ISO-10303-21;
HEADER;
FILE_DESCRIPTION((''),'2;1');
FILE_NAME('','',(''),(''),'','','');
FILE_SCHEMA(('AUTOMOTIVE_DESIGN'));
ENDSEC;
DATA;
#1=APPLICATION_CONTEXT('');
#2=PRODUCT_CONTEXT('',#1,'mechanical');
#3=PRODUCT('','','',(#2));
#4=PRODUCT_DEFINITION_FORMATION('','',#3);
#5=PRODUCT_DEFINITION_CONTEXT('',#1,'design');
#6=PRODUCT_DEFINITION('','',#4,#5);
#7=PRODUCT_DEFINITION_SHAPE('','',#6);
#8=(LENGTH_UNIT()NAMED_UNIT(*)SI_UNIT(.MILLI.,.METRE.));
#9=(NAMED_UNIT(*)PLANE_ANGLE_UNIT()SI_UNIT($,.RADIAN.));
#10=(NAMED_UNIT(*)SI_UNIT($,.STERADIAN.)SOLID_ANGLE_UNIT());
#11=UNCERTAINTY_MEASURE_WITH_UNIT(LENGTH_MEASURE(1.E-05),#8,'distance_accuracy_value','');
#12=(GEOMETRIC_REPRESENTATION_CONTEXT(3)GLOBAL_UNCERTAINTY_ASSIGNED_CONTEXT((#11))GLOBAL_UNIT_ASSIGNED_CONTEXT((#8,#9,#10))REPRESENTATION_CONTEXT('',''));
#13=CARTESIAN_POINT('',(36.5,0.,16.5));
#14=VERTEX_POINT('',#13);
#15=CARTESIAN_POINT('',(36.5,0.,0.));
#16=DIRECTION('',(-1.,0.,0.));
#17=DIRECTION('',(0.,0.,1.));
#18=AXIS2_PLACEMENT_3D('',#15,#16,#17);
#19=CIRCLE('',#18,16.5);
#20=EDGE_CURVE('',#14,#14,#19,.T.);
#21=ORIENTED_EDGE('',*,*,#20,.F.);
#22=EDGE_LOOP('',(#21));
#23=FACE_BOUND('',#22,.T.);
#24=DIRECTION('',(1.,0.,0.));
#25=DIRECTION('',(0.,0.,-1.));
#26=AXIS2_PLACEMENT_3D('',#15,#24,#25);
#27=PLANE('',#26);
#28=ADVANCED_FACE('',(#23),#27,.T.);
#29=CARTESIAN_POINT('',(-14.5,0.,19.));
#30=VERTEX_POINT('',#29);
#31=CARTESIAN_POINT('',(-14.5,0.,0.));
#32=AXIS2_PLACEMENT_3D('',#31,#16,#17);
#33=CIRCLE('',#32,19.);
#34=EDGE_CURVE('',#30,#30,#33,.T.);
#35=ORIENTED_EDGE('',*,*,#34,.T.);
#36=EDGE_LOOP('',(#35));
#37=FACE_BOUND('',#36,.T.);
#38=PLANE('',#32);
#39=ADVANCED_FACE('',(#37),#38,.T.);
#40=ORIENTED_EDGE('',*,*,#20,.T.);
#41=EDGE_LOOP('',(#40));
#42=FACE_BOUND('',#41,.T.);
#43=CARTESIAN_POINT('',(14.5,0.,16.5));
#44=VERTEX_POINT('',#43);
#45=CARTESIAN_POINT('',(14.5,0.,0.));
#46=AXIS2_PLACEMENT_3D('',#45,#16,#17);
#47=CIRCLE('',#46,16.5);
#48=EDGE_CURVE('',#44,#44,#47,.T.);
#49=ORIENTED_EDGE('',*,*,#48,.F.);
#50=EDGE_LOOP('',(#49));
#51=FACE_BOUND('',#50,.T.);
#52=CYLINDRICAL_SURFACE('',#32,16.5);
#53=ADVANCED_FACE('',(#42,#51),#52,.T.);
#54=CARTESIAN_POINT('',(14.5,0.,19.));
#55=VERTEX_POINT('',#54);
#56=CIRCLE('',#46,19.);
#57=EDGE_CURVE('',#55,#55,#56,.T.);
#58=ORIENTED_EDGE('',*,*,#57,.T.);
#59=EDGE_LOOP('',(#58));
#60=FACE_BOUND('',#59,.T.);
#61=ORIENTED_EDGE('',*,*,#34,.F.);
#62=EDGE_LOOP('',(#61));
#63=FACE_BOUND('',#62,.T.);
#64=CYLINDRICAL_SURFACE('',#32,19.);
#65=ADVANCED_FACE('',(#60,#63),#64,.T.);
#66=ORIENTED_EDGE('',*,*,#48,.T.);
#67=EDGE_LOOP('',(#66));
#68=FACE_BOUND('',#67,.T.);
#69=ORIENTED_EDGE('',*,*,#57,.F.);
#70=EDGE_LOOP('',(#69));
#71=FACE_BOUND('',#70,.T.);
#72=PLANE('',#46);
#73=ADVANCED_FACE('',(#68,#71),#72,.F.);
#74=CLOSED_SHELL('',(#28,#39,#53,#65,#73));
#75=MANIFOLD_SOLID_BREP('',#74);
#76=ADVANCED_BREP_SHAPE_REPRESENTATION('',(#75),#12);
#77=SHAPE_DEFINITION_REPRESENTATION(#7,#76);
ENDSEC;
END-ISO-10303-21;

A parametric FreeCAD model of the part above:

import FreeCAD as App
import Part
import Sketcher
Q = App.Units.Quantity


def add_polygon(sketch, points):
    """Adds a closed chain of lines whose ends are joined by coincident constraints."""
    first, n = sketch.GeometryCount, len(points)
    for a, b in zip(points, points[1:] + points[:1]):
        sketch.addGeometry(Part.LineSegment(App.Vector(*a, 0), App.Vector(*b, 0)), False)
    for i in range(n):
        sketch.addConstraint(Sketcher.Constraint("Coincident", first + i, 2, first + (i + 1) % n, 1))

doc = App.newDocument("Part")
body = doc.addObject("PartDesign::Body", "Body")

# Sketch on XZ plane
sketch1 = body.newObject("Sketcher::SketchObject", "Sketch")
sketch1.AttachmentSupport = (doc.getObject("XZ_Plane"), [""])
sketch1.MapMode = "FlatFace"
add_polygon(sketch1, [(-14.5, -19), (-14.5, 0), (36.5, 0), (36.5, -16.5), (14.5, -16.5), (14.5, -19)])  # lines 0-5
sketch1.addConstraint([
    Sketcher.Constraint("Vertical", 0),
    Sketcher.Constraint("Horizontal", 1),
    Sketcher.Constraint("Vertical", 2),
    Sketcher.Constraint("Horizontal", 3),
    Sketcher.Constraint("Vertical", 4),
    Sketcher.Constraint("Horizontal", 5),
    Sketcher.Constraint("PointOnObject", 0, 2, -1),
    Sketcher.Constraint("DistanceX", 1, 1, 1, 2, Q("51 mm")),
    Sketcher.Constraint("DistanceX", 3, 2, 3, 1, Q("22 mm")),
    Sketcher.Constraint("DistanceY", 0, 1, 0, 2, Q("19 mm")),
    Sketcher.Constraint("DistanceY", 2, 2, 2, 1, Q("16.5 mm")),
    Sketcher.Constraint("DistanceX", 0, 2, -1, 1, Q("14.5 mm")),
])
revolution = body.newObject("PartDesign::Revolution", "Revolution")
revolution.Profile = sketch1
revolution.ReferenceAxis = (sketch1, ["H_Axis"])
revolution.Angle = 360

doc.recompute()
